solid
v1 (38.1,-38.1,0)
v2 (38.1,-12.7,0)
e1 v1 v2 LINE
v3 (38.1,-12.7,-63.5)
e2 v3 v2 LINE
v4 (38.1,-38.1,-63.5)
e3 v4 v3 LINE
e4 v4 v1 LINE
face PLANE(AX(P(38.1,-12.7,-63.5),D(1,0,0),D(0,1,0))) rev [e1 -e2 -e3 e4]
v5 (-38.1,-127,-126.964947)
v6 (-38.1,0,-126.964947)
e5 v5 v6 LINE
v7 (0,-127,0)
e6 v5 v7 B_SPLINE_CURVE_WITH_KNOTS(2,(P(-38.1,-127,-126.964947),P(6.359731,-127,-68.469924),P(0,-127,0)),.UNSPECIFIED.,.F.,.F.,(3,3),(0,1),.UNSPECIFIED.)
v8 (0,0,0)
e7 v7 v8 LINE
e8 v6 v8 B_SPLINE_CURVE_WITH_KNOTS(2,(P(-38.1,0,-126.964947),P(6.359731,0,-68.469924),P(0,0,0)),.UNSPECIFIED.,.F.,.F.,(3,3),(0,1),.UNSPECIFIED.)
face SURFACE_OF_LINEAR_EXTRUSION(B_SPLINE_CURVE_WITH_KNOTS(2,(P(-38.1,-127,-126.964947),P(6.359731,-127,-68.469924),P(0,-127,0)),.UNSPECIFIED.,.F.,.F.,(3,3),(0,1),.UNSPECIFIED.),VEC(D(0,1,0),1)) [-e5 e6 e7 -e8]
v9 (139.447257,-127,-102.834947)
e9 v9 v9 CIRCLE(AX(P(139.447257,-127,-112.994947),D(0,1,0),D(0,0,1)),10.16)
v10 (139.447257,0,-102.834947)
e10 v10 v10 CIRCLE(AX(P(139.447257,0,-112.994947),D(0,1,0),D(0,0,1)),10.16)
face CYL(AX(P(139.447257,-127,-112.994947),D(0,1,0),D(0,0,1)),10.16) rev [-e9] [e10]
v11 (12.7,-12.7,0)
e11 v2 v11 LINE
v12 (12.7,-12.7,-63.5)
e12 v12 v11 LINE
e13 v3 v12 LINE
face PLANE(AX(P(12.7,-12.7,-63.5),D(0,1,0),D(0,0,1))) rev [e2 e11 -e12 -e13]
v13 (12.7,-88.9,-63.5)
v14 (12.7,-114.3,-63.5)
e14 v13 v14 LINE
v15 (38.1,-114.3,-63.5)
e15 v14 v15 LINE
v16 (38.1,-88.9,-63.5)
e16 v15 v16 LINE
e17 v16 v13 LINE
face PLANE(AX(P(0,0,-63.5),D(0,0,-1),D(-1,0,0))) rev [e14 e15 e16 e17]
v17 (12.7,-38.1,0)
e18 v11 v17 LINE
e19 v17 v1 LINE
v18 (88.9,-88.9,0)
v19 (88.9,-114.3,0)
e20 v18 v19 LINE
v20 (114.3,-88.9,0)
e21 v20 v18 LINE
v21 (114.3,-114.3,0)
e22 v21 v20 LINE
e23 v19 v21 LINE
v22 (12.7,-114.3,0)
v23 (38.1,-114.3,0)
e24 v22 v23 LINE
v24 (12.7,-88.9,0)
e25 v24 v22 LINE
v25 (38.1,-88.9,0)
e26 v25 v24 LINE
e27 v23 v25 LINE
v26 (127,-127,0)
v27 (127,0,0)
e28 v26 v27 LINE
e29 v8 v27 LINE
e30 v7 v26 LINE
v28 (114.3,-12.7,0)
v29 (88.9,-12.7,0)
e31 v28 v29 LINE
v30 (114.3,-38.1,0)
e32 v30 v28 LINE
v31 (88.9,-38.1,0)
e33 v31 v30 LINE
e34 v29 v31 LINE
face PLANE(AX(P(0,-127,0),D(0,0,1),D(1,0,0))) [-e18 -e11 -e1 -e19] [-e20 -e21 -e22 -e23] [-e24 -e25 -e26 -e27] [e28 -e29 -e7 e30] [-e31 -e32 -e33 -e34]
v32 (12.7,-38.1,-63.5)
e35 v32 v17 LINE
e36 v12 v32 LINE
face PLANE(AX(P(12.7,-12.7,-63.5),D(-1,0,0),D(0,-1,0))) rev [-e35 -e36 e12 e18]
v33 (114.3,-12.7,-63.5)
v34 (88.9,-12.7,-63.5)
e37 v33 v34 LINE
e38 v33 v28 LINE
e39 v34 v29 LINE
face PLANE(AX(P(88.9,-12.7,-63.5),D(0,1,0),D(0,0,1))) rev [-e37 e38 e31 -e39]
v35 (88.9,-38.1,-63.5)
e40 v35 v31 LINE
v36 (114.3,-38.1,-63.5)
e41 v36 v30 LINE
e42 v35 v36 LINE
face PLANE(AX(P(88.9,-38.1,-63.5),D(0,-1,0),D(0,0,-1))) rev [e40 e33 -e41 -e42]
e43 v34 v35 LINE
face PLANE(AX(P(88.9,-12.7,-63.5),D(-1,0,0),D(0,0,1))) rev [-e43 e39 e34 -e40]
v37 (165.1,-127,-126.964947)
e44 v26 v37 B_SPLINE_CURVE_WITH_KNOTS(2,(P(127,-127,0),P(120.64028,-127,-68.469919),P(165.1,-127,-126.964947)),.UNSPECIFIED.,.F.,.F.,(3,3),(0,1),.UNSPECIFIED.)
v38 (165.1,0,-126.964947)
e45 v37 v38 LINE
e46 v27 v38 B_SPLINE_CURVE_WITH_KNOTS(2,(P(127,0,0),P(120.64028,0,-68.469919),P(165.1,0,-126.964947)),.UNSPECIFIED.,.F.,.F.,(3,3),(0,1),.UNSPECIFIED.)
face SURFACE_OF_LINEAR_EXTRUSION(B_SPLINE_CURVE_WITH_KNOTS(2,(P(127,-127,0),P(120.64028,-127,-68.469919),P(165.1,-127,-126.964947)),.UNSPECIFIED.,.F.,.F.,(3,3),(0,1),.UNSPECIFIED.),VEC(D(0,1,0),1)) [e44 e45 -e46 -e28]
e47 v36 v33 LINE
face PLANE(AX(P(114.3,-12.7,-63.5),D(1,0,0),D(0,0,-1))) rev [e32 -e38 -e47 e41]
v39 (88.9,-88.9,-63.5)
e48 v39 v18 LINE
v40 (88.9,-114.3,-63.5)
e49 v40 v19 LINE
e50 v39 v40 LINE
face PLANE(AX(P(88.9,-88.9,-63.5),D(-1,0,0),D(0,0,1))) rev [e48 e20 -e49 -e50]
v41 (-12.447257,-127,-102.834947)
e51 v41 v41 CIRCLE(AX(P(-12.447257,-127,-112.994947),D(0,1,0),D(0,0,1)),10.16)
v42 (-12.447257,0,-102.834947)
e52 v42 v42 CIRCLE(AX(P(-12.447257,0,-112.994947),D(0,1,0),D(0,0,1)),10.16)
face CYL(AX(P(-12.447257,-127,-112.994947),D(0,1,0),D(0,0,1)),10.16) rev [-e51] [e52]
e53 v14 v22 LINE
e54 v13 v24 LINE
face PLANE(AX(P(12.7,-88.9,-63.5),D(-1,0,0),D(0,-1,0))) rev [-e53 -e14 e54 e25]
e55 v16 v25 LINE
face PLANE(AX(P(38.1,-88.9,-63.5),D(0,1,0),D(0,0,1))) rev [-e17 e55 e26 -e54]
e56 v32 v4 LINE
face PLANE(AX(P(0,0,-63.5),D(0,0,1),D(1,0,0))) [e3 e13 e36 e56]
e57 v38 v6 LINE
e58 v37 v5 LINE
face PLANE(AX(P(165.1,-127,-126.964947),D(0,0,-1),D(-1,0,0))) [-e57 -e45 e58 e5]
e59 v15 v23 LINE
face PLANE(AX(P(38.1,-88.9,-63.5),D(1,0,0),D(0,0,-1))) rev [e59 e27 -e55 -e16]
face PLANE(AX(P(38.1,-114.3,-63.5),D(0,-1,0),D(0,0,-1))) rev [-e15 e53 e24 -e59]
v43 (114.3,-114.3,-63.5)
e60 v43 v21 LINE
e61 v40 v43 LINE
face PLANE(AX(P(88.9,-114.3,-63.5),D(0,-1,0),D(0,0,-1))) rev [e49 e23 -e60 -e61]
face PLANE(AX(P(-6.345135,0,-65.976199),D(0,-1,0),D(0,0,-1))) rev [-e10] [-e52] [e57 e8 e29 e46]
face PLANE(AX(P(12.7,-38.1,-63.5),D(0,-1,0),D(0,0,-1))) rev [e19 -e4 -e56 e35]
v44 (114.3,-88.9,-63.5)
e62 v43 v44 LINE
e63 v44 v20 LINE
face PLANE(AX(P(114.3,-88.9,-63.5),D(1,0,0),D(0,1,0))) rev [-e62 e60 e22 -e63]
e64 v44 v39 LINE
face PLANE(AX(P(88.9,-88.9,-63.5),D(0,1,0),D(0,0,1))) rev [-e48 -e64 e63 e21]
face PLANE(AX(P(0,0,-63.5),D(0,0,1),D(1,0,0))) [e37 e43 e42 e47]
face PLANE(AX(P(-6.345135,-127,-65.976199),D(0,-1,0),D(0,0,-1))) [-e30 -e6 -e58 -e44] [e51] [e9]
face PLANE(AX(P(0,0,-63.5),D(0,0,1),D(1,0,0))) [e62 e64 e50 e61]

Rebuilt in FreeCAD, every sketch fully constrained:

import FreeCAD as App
import Part
import Sketcher
from FreeCAD import Vector
Q = App.Units.Quantity


def add_polygon(sketch, points):
    """Adds a closed chain of lines whose ends are joined by coincident constraints."""
    first, n = sketch.GeometryCount, len(points)
    for a, b in zip(points, points[1:] + points[:1]):
        sketch.addGeometry(Part.LineSegment(App.Vector(*a, 0), App.Vector(*b, 0)), False)
    for i in range(n):
        sketch.addConstraint(Sketcher.Constraint("Coincident", first + i, 2, first + (i + 1) % n, 1))

doc = App.newDocument("Part")
body = doc.addObject("PartDesign::Body", "Body")

sketch1 = body.newObject("Sketcher::SketchObject", "Sketch")
sketch1.AttachmentSupport = (doc.getObject("XZ_Plane"), [""])
sketch1.MapMode = "FlatFace"
sketch1.addGeometry(Part.LineSegment(Vector(0, 0, 0), Vector(127, 0, 0)), False)
sketch1.addGeometry(Part.BSplineCurve([Vector(127, 0, 0), Vector(120.64028, -68.469919, 0), Vector(165.1, -126.964947, 0)], [3, 3], [0, 1], False, 2, [1, 1, 1], False), False)
sketch1.addGeometry(Part.LineSegment(Vector(165.1, -126.964947, 0), Vector(-38.1, -126.964947, 0)), False)
sketch1.addGeometry(Part.BSplineCurve([Vector(0, 0, 0), Vector(6.359731, -68.469924, 0), Vector(-38.1, -126.964947, 0)], [3, 3], [0, 1], False, 2, [1, 1, 1], False), False)
sketch1.addConstraint(Sketcher.Constraint("Block", 1))
sketch1.addConstraint(Sketcher.Constraint("Block", 3))
sketch1.addConstraint(Sketcher.Constraint("Coincident", 0, 2, 1, 1))
sketch1.addConstraint(Sketcher.Constraint("Coincident", 1, 2, 2, 1))
sketch1.addConstraint(Sketcher.Constraint("Coincident", 2, 2, 3, 2))
sketch1.addConstraint(Sketcher.Constraint("Coincident", 3, 1, 0, 1))
pad1 = body.newObject("PartDesign::Pad", "Pad")
pad1.Profile = sketch1
pad1.Length = Q("5 in")

sketch2 = body.newObject("Sketcher::SketchObject", "Sketch001")
sketch2.AttachmentSupport = (doc.getObject("XY_Plane"), [""])
sketch2.MapMode = "FlatFace"
add_polygon(sketch2, [(12.7, -12.7), (12.7, -38.1), (38.1, -38.1), (38.1, -12.7)])
add_polygon(sketch2, [(12.7, -88.9), (12.7, -114.3), (38.1, -114.3), (38.1, -88.9)])
add_polygon(sketch2, [(88.9, -12.7), (88.9, -38.1), (114.3, -38.1), (114.3, -12.7)])
add_polygon(sketch2, [(88.9, -88.9), (88.9, -114.3), (114.3, -114.3), (114.3, -88.9)])
sketch2.addConstraint(Sketcher.Constraint("Vertical", 0))
sketch2.addConstraint(Sketcher.Constraint("Horizontal", 1))
sketch2.addConstraint(Sketcher.Constraint("Vertical", 2))
sketch2.addConstraint(Sketcher.Constraint("Horizontal", 3))
sketch2.addConstraint(Sketcher.Constraint("Vertical", 4))
sketch2.addConstraint(Sketcher.Constraint("Horizontal", 5))
sketch2.addConstraint(Sketcher.Constraint("Vertical", 6))
sketch2.addConstraint(Sketcher.Constraint("Horizontal", 7))
sketch2.addConstraint(Sketcher.Constraint("Vertical", 8))
sketch2.addConstraint(Sketcher.Constraint("Horizontal", 9))
sketch2.addConstraint(Sketcher.Constraint("Vertical", 10))
sketch2.addConstraint(Sketcher.Constraint("Horizontal", 11))
sketch2.addConstraint(Sketcher.Constraint("Vertical", 12))
sketch2.addConstraint(Sketcher.Constraint("Horizontal", 13))
sketch2.addConstraint(Sketcher.Constraint("Vertical", 14))
sketch2.addConstraint(Sketcher.Constraint("Horizontal", 15))
sketch2.addConstraint(Sketcher.Constraint("Horizontal", 1, 2, 8, 2))
sketch2.addConstraint(Sketcher.Constraint("Horizontal", 3, 2, 10, 2))
sketch2.addConstraint(Sketcher.Constraint("Horizontal", 5, 2, 12, 2))
sketch2.addConstraint(Sketcher.Constraint("Horizontal", 7, 2, 14, 2))
sketch2.addConstraint(Sketcher.Constraint("Vertical", 3, 2, 4, 2))
sketch2.addConstraint(Sketcher.Constraint("Vertical", 2, 2, 5, 2))
sketch2.addConstraint(Sketcher.Constraint("Vertical", 11, 2, 12, 2))
sketch2.addConstraint(Sketcher.Constraint("Vertical", 10, 2, 13, 2))
sketch2.addConstraint(Sketcher.Constraint("Equal", 7, 9))
sketch2.addConstraint(Sketcher.Constraint("Equal", 15, 0))
sketch2.addConstraint(Sketcher.Constraint("Equal", 2, 4))
sketch2.addConstraint(Sketcher.Constraint("DistanceX", 1, 1, 1, 2, Q("1 in")))
sketch2.addConstraint(Sketcher.Constraint("DistanceY", 4, 2, 0, 2, Q("3 in")))
sketch2.addConstraint(Sketcher.Constraint("DistanceX", 1, 2, 8, 2, Q("2 in")))
sketch2.addConstraint(Sketcher.Constraint("DistanceX", -1, 1, 0, 2, Q("0.5 in")))
sketch2.addConstraint(Sketcher.Constraint("DistanceY", 0, 2, -1, 1, Q("1.5 in")))
pocket1 = body.newObject("PartDesign::Pocket", "Pocket")
pocket1.Profile = sketch2
pocket1.Length = Q("2.5 in")

sketch3 = body.newObject("Sketcher::SketchObject", "Sketch002")
sketch3.AttachmentSupport = (doc.getObject("XZ_Plane"), [""])
sketch3.MapMode = "FlatFace"
sketch3.addGeometry(Part.Circle(Vector(-12.447257, -112.994947, 0), Vector(0, 0, 1), 10.16), False)
sketch3.addGeometry(Part.Circle(Vector(139.447257, -112.994947, 0), Vector(0, 0, 1), 10.16), False)
sketch3.addConstraint(Sketcher.Constraint("Equal", 0, 1))
sketch3.addConstraint(Sketcher.Constraint("Horizontal", 0, 3, 1, 3))
sketch3.addConstraint(Sketcher.Constraint("Diameter", 0, Q("0.8 in")))
sketch3.addConstraint(Sketcher.Constraint("DistanceX", 0, 3, -1, 1, 12.447257))
sketch3.addConstraint(Sketcher.Constraint("DistanceY", 0, 3, -1, 1, 112.994947))
sketch3.addConstraint(Sketcher.Constraint("DistanceX", -1, 1, 1, 3, 139.447257))
pocket2 = body.newObject("PartDesign::Pocket", "Pocket001")
pocket2.Profile = sketch3
pocket2.Type = "ThroughAll"
pocket2.Reversed = True

doc.recompute()
